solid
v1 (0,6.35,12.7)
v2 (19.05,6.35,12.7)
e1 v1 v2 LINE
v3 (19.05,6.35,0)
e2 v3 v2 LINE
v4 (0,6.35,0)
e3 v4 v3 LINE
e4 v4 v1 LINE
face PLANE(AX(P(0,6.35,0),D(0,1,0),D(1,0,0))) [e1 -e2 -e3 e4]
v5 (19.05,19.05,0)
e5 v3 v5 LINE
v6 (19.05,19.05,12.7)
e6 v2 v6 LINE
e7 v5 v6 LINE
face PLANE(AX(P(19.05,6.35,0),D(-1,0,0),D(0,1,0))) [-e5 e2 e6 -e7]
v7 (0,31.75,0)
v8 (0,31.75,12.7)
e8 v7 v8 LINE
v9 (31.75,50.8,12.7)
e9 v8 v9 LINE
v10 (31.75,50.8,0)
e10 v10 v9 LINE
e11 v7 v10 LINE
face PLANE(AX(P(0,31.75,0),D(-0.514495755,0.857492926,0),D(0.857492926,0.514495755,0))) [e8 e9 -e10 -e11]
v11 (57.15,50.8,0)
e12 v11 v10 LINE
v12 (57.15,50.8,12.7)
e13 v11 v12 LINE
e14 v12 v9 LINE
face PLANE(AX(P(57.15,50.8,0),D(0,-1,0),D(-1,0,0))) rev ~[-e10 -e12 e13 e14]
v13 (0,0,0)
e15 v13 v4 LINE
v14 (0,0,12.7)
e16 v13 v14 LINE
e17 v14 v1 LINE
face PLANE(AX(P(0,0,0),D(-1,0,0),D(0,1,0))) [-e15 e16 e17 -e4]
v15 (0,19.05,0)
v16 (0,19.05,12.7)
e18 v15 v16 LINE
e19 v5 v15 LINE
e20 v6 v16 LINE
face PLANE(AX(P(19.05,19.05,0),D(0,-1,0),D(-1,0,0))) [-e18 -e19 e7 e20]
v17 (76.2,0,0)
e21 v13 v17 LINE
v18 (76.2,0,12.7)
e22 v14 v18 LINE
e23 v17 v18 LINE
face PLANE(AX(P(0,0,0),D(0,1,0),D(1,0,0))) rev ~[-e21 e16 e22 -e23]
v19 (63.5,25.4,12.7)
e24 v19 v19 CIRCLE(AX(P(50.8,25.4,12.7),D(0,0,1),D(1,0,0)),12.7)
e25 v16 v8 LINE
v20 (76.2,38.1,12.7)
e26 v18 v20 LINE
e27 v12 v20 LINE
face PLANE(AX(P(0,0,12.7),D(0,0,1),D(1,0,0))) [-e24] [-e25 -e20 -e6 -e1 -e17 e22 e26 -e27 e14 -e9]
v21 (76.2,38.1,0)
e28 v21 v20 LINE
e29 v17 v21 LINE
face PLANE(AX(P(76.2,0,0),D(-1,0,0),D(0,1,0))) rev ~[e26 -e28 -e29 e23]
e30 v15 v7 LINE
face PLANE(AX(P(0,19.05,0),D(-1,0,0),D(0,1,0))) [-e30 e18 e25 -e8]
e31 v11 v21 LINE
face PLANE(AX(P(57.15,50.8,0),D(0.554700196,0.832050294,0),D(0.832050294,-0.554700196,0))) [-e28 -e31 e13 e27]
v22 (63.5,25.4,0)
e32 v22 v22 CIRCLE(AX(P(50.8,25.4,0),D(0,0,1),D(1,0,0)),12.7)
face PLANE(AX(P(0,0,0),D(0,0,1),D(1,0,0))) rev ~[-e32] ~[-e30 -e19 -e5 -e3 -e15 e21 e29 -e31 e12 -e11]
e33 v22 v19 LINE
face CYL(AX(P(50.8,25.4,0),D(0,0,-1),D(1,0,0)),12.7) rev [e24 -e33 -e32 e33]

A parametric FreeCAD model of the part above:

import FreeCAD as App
import Part
import Sketcher

V = App.Vector
Q = App.Units.Quantity

doc = App.newDocument("Part")
body = doc.addObject("PartDesign::Body", "Body")

sketch1 = doc.addObject("Sketcher::SketchObject", "Sketch")
body.addObject(sketch1)
sketch1.AttachmentSupport = (doc.XY_Plane, [""])
sketch1.MapMode = "FlatFace"
sketch1.addGeometry([
    Part.LineSegment(V(0, 6.35, 0), V(0, 0, 0)),
    Part.LineSegment(V(0, 0, 0), V(76.2, 0, 0)),
    Part.LineSegment(V(76.2, 0, 0), V(76.2, 38.1, 0)),
    Part.LineSegment(V(76.2, 38.1, 0), V(57.15, 50.8, 0)),
    Part.LineSegment(V(57.15, 50.8, 0), V(31.75, 50.8, 0)),
    Part.LineSegment(V(31.75, 50.8, 0), V(0, 31.75, 0)),
    Part.LineSegment(V(0, 31.75, 0), V(0, 19.05, 0)),
    Part.LineSegment(V(0, 19.05, 0), V(19.05, 19.05, 0)),
    Part.LineSegment(V(19.05, 19.05, 0), V(19.05, 6.35, 0)),
    Part.LineSegment(V(19.05, 6.35, 0), V(0, 6.35, 0)),
    Part.Circle(V(50.8, 25.4, 0), V(0, 0, 1), 12.7),
], False)
sketch1.addConstraint([
    Sketcher.Constraint("Coincident", 0, 2, 1, 1),
    Sketcher.Constraint("Coincident", 1, 2, 2, 1),
    Sketcher.Constraint("Coincident", 2, 2, 3, 1),
    Sketcher.Constraint("Coincident", 3, 2, 4, 1),
    Sketcher.Constraint("Coincident", 4, 2, 5, 1),
    Sketcher.Constraint("Coincident", 5, 2, 6, 1),
    Sketcher.Constraint("Coincident", 6, 2, 7, 1),
    Sketcher.Constraint("Coincident", 7, 2, 8, 1),
    Sketcher.Constraint("Coincident", 8, 2, 9, 1),
    Sketcher.Constraint("Coincident", 9, 2, 0, 1),
    Sketcher.Constraint("Vertical", 0),
    Sketcher.Constraint("Horizontal", 1),
    Sketcher.Constraint("Vertical", 2),
    Sketcher.Constraint("Horizontal", 4),
    Sketcher.Constraint("Vertical", 6),
    Sketcher.Constraint("Horizontal", 7),
    Sketcher.Constraint("Vertical", 8),
    Sketcher.Constraint("Horizontal", 9),
    Sketcher.Constraint("Coincident", 0, 2, -1, 1),
    Sketcher.Constraint("PointOnObject", 5, 2, -2),
    Sketcher.Constraint("Equal", 6, 8),
    Sketcher.Constraint("Diameter", 10, Q("1 in")),
    Sketcher.Constraint("DistanceX", 1, 1, 1, 2, Q("3 in")),
    Sketcher.Constraint("DistanceX", 4, 2, 4, 1, Q("1 in")),
    Sketcher.Constraint("DistanceY", 2, 1, 2, 2, Q("1.5 in")),
    Sketcher.Constraint("DistanceY", 6, 2, 6, 1, Q("0.5 in")),
    Sketcher.Constraint("DistanceY", -1, 1, 10, 3, Q("1 in")),
    Sketcher.Constraint("DistanceX", 10, 3, 1, 2, Q("1 in")),
    Sketcher.Constraint("DistanceY", 10, 3, 3, 2, Q("1 in")),
    Sketcher.Constraint("DistanceX", 7, 1, 7, 2, Q("0.75 in")),
    Sketcher.Constraint("DistanceY", 0, 2, 0, 1, Q("0.25 in")),
    Sketcher.Constraint("DistanceX", 7, 2, 4, 2, Q("0.5 in")),
])
pad1 = doc.addObject("PartDesign::Pad", "Pad")
body.addObject(pad1)
pad1.Profile = sketch1
pad1.Length = Q("0.5 in")

doc.recompute()
